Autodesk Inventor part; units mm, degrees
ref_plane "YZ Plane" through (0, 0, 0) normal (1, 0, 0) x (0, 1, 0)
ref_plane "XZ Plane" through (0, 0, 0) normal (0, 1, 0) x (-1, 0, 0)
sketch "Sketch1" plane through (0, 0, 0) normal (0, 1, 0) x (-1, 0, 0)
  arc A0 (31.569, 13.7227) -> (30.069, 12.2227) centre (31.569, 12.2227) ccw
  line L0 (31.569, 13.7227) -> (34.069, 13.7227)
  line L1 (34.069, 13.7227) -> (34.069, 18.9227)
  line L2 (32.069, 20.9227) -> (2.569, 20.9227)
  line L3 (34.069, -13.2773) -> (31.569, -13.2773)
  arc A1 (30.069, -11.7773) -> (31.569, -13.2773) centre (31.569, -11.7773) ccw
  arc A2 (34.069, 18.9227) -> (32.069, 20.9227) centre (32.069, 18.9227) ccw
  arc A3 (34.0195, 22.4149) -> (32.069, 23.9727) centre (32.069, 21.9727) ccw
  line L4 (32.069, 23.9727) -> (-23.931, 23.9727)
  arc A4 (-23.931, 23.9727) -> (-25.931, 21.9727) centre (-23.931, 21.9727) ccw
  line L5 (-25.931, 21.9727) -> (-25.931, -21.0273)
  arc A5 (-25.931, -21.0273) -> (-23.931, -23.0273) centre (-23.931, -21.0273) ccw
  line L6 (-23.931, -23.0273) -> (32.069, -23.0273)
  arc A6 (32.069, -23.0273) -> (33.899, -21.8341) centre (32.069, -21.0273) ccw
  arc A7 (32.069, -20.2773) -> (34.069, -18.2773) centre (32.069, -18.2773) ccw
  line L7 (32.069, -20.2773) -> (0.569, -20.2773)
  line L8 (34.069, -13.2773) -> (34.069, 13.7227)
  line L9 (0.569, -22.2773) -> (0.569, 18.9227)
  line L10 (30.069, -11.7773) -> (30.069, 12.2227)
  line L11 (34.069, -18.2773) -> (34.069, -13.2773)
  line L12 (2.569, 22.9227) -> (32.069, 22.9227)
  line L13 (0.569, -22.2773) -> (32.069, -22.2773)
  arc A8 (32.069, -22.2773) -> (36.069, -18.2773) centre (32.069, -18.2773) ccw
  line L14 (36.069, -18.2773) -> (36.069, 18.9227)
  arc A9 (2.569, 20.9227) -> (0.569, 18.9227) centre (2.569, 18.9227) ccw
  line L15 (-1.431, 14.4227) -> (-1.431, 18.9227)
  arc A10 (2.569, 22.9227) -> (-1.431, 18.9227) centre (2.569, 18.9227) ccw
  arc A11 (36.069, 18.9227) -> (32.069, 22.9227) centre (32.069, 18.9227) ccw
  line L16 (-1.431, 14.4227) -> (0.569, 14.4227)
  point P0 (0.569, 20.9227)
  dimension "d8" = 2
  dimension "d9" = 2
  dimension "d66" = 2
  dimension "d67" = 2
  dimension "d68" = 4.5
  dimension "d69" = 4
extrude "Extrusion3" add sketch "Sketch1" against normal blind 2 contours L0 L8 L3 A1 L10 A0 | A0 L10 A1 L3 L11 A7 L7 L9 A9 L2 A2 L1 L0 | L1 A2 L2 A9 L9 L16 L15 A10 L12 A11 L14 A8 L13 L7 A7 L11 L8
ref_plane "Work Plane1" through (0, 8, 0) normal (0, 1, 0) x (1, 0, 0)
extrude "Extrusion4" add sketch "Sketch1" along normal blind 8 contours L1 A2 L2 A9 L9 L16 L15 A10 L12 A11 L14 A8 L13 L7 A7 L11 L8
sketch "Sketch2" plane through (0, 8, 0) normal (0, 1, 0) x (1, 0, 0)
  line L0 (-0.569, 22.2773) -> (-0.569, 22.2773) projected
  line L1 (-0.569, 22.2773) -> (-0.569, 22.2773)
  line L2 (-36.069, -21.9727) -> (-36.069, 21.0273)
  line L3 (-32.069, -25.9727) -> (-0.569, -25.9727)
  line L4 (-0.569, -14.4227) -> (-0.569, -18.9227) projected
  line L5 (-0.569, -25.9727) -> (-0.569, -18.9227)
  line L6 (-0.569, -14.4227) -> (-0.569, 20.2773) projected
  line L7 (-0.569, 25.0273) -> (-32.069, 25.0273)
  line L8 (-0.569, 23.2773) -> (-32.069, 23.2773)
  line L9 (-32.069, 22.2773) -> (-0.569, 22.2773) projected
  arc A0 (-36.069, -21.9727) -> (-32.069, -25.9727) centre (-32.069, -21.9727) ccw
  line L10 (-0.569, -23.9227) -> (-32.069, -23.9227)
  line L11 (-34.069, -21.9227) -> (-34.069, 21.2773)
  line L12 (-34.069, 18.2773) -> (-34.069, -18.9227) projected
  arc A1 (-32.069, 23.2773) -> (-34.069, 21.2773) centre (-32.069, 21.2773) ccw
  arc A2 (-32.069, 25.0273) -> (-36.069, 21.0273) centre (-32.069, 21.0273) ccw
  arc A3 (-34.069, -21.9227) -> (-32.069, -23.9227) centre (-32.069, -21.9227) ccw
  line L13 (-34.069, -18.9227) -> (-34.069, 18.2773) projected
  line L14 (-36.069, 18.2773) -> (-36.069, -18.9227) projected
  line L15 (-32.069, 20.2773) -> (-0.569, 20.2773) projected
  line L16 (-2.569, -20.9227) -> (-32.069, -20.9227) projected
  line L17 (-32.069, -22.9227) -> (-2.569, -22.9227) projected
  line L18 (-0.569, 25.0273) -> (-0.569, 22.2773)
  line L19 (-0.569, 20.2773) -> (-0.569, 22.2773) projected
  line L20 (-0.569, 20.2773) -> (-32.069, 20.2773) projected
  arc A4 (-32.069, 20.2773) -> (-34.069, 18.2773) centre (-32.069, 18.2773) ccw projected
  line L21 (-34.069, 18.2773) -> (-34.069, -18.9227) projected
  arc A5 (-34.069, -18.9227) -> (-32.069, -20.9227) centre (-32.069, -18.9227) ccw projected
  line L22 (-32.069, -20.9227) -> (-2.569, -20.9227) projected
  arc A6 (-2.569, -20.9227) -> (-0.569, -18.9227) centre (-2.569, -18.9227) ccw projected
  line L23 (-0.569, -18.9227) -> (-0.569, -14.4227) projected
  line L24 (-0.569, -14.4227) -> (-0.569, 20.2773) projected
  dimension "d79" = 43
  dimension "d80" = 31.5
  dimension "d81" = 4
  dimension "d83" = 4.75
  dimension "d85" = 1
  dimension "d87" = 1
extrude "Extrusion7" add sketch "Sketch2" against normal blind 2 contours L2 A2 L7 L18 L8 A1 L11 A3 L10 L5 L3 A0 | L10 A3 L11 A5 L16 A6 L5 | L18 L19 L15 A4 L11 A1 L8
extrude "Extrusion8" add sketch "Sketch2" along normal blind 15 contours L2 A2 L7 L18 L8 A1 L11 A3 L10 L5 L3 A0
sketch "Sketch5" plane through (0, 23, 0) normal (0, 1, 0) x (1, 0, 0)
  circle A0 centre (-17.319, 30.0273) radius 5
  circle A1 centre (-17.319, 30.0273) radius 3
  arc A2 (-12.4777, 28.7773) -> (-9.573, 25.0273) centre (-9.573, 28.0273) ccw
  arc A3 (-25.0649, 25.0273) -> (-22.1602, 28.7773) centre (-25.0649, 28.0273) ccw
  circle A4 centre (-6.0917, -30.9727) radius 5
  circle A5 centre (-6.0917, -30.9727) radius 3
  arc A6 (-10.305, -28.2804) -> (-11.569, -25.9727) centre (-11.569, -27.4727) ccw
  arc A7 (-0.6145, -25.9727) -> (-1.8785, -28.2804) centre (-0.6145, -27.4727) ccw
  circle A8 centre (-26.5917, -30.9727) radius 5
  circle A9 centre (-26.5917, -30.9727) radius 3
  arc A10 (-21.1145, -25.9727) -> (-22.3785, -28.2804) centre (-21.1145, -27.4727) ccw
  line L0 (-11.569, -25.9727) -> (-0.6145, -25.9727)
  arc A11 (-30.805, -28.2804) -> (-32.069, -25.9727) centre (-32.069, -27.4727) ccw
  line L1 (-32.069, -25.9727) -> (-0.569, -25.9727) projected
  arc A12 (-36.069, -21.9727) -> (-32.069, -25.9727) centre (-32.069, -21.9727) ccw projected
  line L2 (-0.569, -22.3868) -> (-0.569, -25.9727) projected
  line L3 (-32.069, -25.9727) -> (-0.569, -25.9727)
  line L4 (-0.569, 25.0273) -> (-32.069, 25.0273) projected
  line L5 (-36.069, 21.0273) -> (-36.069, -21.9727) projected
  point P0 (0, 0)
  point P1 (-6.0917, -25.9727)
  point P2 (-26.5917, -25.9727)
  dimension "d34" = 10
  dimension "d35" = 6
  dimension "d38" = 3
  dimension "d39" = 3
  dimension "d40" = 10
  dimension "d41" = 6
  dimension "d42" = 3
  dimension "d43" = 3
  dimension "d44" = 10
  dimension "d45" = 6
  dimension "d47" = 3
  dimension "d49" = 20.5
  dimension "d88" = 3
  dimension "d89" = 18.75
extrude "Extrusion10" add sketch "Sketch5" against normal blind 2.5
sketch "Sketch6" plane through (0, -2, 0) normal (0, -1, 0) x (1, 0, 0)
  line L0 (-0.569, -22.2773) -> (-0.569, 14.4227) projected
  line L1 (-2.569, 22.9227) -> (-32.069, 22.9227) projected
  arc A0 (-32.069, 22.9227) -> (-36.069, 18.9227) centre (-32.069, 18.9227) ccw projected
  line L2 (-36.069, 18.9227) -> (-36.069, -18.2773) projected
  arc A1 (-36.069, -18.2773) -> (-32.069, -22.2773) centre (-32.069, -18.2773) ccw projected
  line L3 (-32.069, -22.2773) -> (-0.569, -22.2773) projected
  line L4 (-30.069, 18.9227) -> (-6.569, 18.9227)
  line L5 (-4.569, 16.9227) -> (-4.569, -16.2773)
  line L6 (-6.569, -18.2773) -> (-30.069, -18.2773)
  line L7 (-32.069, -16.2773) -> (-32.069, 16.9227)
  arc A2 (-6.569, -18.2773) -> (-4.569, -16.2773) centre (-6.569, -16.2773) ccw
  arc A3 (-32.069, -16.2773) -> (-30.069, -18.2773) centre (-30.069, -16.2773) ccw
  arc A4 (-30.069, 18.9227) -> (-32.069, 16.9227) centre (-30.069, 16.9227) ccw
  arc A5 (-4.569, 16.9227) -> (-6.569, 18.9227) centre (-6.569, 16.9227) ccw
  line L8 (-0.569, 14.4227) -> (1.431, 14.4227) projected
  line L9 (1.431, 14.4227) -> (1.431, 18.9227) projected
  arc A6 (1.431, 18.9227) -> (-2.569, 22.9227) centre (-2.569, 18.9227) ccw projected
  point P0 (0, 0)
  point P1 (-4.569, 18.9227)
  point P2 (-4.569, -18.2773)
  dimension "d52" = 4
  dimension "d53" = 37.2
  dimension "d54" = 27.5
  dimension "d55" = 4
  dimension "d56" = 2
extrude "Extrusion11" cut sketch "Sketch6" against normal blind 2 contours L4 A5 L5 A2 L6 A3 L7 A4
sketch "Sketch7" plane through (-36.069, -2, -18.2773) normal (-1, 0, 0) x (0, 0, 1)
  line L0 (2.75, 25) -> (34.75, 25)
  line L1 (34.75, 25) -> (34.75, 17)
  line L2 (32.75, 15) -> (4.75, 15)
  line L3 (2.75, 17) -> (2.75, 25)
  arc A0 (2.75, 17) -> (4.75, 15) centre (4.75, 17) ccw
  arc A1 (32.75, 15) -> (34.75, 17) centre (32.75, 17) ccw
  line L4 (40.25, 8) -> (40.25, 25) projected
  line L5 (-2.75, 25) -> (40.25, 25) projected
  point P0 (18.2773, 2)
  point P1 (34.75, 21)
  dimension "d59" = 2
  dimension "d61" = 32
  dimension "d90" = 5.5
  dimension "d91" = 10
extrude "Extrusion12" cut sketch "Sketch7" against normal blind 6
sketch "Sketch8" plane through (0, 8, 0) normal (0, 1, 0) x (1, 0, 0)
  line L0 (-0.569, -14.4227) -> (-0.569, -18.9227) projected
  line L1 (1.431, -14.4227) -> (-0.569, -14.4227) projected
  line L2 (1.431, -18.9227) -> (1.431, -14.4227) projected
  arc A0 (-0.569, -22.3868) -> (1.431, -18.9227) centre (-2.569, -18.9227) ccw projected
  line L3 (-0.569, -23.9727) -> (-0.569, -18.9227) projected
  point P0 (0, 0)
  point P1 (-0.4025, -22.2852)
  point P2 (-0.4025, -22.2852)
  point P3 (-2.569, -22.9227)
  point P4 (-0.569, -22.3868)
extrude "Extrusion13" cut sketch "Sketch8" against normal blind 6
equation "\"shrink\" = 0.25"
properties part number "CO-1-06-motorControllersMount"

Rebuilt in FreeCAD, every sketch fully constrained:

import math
import FreeCAD as App
import Part
import Sketcher
Q = App.Units.Quantity

doc = App.newDocument("Part")
params = doc.addObject("Spreadsheet::Sheet", "Params")
for row, (alias, value) in enumerate([
    ("sketch1_radius", "4 mm"),
    ("sketch1_width", "2 mm"),
    ("sketch1_height", "4.5 mm"),
    ("sketch1_width2", "31.5 mm"),
    ("sketch1_height2", "36.7 mm"),
    ("pad1_length", "2 mm"),
    ("sketch2_radius", "2 mm"),
    ("sketch2_radius2", "4 mm"),
    ("sketch2_height", "4.5 mm"),
    ("sketch2_width", "31.5 mm"),
    ("sketch2_height2", "37.2 mm"),
    ("pad2_length", "8 mm"),
    ("sketch3_radius", "4 mm"),
    ("sketch3_radius2", "2 mm"),
    ("sketch3_height", "43 mm"),
    ("sketch3_width", "31.5 mm"),
    ("sketch3_height2", "4.75 mm"),
    ("pad3_length", "2 mm"),
    ("sketch4_radius", "4 mm"),
    ("sketch4_radius2", "2 mm"),
    ("sketch4_height", "43 mm"),
    ("sketch4_width", "31.5 mm"),
    ("sketch4_height2", "43.2 mm"),
    ("pad4_length", "15 mm"),
    ("sketch5_diameter", "6 mm"),
    ("sketch5_radius", "5 mm"),
    ("sketch5_radius2", "1.5 mm"),
    ("pad5_length", "2.5 mm"),
    ("sketch6_radius", "2 mm"),
    ("sketch6_height", "33.2 mm"),
    ("pocket1_length", "2 mm"),
    ("sketch7_radius", "2 mm"),
    ("sketch7_height", "32 mm"),
    ("pocket2_length", "6 mm"),
    ("sketch8_radius", "4 mm"),
    ("sketch8_width", "2 mm"),
    ("sketch8_height", "4.5 mm"),
    ("pocket3_length", "6 mm"),
], start=1):
    params.set(f"A{row}", alias)
    params.set(f"B{row}", "=" + value)
    params.setAlias(f"B{row}", alias)

body = doc.addObject("PartDesign::Body", "Body")

# Sketch on XZ plane
sketch1 = body.newObject("Sketcher::SketchObject", "Sketch")
sketch1.AttachmentSupport = (doc.getObject("XZ_Plane"), [""])
sketch1.MapMode = "FlatFace"
sketch1.addGeometry([
    Part.LineSegment(App.Vector(-0.6, 14.4, 0), App.Vector(-0.6, -22.3, 0)),  # 0
    Part.LineSegment(App.Vector(-0.6, -22.3, 0), App.Vector(-32.1, -22.3, 0)),  # 1
    Part.ArcOfCircle(Part.Circle(App.Vector(-32.1, -18.3, 0), App.Vector(0, 0, 1), 4), math.radians(180), math.radians(270)),  # 2
    Part.LineSegment(App.Vector(-36.1, -18.3, 0), App.Vector(-36.1, 18.9, 0)),  # 3
    Part.ArcOfCircle(Part.Circle(App.Vector(-32.1, 18.9, 0), App.Vector(0, 0, 1), 4), math.radians(90), math.radians(180)),  # 4
    Part.LineSegment(App.Vector(-32.1, 22.9, 0), App.Vector(-2.6, 22.9, 0)),  # 5
    Part.ArcOfCircle(Part.Circle(App.Vector(-2.6, 18.9, 0), App.Vector(0, 0, 1), 4), math.radians(0), math.radians(90)),  # 6
    Part.LineSegment(App.Vector(1.4, 18.9, 0), App.Vector(1.4, 14.4, 0)),  # 7
    Part.LineSegment(App.Vector(1.4, 14.4, 0), App.Vector(-0.6, 14.4, 0)),  # 8
], False)
sketch1.addConstraint([
    Sketcher.Constraint("Coincident", 0, 2, 1, 1),
    Sketcher.Constraint("Tangent", 1, 2, 2, 2),
    Sketcher.Constraint("Tangent", 2, 1, 3, 1),
    Sketcher.Constraint("Tangent", 3, 2, 4, 2),
    Sketcher.Constraint("Tangent", 4, 1, 5, 1),
    Sketcher.Constraint("Tangent", 5, 2, 6, 2),
    Sketcher.Constraint("Tangent", 6, 1, 7, 1),
    Sketcher.Constraint("Coincident", 7, 2, 8, 1),
    Sketcher.Constraint("Coincident", 8, 2, 0, 1),
    Sketcher.Constraint("Vertical", 0),
    Sketcher.Constraint("Horizontal", 1),
    Sketcher.Constraint("Vertical", 3),
    Sketcher.Constraint("Horizontal", 5),
    Sketcher.Constraint("Vertical", 7),
    Sketcher.Constraint("Horizontal", 8),
    Sketcher.Constraint("Equal", 2, 4),
    Sketcher.Constraint("Equal", 4, 6),
    Sketcher.Constraint("Radius", 2, Q("4 mm")),
    Sketcher.Constraint("DistanceX", 8, 2, 8, 1, Q("2 mm")),
    Sketcher.Constraint("DistanceY", 7, 2, 7, 1, Q("4.5 mm")),
    Sketcher.Constraint("DistanceX", 1, 2, 1, 1, Q("31.5 mm")),
    Sketcher.Constraint("DistanceY", 0, 2, 0, 1, Q("36.7 mm")),
    Sketcher.Constraint("DistanceX", 2, 3, -1, 1, Q("32.069 mm")),
    Sketcher.Constraint("DistanceY", 2, 3, -1, 1, Q("18.2773 mm")),
])
sketch1.setExpression("Constraints[17]", "Params.sketch1_radius")
sketch1.setExpression("Constraints[18]", "Params.sketch1_width")
sketch1.setExpression("Constraints[19]", "Params.sketch1_height")
sketch1.setExpression("Constraints[20]", "Params.sketch1_width2")
sketch1.setExpression("Constraints[21]", "Params.sketch1_height2")
pad1 = body.newObject("PartDesign::Pad", "Pad")
pad1.Profile = sketch1
pad1.setExpression("Length", "Params.pad1_length")

# Sketch on XZ plane
sketch2 = body.newObject("Sketcher::SketchObject", "Sketch001")
sketch2.AttachmentSupport = (doc.getObject("XZ_Plane"), [""])
sketch2.MapMode = "FlatFace"
sketch2.addGeometry([
    Part.LineSegment(App.Vector(-34.1, 18.9, 0), App.Vector(-34.1, -18.3, 0)),  # 0
    Part.ArcOfCircle(Part.Circle(App.Vector(-32.1, -18.3, 0), App.Vector(0, 0, 1), 2), math.radians(180), math.radians(270)),  # 1
    Part.LineSegment(App.Vector(-32.1, -20.3, 0), App.Vector(-0.6, -20.3, 0)),  # 2
    Part.LineSegment(App.Vector(-0.6, -20.3, 0), App.Vector(-0.6, -22.3, 0)),  # 3
    Part.LineSegment(App.Vector(-0.6, -22.3, 0), App.Vector(-32.1, -22.3, 0)),  # 4
    Part.ArcOfCircle(Part.Circle(App.Vector(-32.1, -18.3, 0), App.Vector(0, 0, 1), 4), math.radians(180), math.radians(270)),  # 5
    Part.LineSegment(App.Vector(-36.1, -18.3, 0), App.Vector(-36.1, 18.9, 0)),  # 6
    Part.ArcOfCircle(Part.Circle(App.Vector(-32.1, 18.9, 0), App.Vector(0, 0, 1), 4), math.radians(90), math.radians(180)),  # 7
    Part.LineSegment(App.Vector(-32.1, 22.9, 0), App.Vector(-2.6, 22.9, 0)),  # 8
    Part.ArcOfCircle(Part.Circle(App.Vector(-2.6, 18.9, 0), App.Vector(0, 0, 1), 4), math.radians(0), math.radians(90)),  # 9
    Part.LineSegment(App.Vector(1.4, 18.9, 0), App.Vector(1.4, 14.4, 0)),  # 10
    Part.LineSegment(App.Vector(1.4, 14.4, 0), App.Vector(-0.6, 14.4, 0)),  # 11
    Part.LineSegment(App.Vector(-0.6, 14.4, 0), App.Vector(-0.6, 18.9, 0)),  # 12
    Part.ArcOfCircle(Part.Circle(App.Vector(-2.6, 18.9, 0), App.Vector(0, 0, 1), 2), math.radians(0), math.radians(90)),  # 13
    Part.LineSegment(App.Vector(-2.6, 20.9, 0), App.Vector(-32.1, 20.9, 0)),  # 14
    Part.ArcOfCircle(Part.Circle(App.Vector(-32.1, 18.9, 0), App.Vector(0, 0, 1), 2), math.radians(90), math.radians(180)),  # 15
], False)
sketch2.addConstraint([
    Sketcher.Constraint("Tangent", 0, 2, 1, 1),
    Sketcher.Constraint("Tangent", 1, 2, 2, 1),
    Sketcher.Constraint("Coincident", 2, 2, 3, 1),
    Sketcher.Constraint("Coincident", 3, 2, 4, 1),
    Sketcher.Constraint("Tangent", 4, 2, 5, 2),
    Sketcher.Constraint("Tangent", 5, 1, 6, 1),
    Sketcher.Constraint("Tangent", 6, 2, 7, 2),
    Sketcher.Constraint("Tangent", 7, 1, 8, 1),
    Sketcher.Constraint("Tangent", 8, 2, 9, 2),
    Sketcher.Constraint("Tangent", 9, 1, 10, 1),
    Sketcher.Constraint("Coincident", 10, 2, 11, 1),
    Sketcher.Constraint("Coincident", 11, 2, 12, 1),
    Sketcher.Constraint("Tangent", 12, 2, 13, 1),
    Sketcher.Constraint("Tangent", 13, 2, 14, 1),
    Sketcher.Constraint("Tangent", 14, 2, 15, 1),
    Sketcher.Constraint("Tangent", 15, 2, 0, 1),
    Sketcher.Constraint("Vertical", 0),
    Sketcher.Constraint("Horizontal", 2),
    Sketcher.Constraint("Vertical", 3),
    Sketcher.Constraint("Horizontal", 4),
    Sketcher.Constraint("Vertical", 6),
    Sketcher.Constraint("Horizontal", 8),
    Sketcher.Constraint("Vertical", 10),
    Sketcher.Constraint("Horizontal", 11),
    Sketcher.Constraint("Vertical", 12),
    Sketcher.Constraint("Horizontal", 14),
    Sketcher.Constraint("Coincident", 5, 3, 1, 3),
    Sketcher.Constraint("Coincident", 13, 3, 9, 3),
    Sketcher.Constraint("Coincident", 15, 3, 7, 3),
    Sketcher.Constraint("Equal", 5, 7),
    Sketcher.Constraint("Equal", 7, 9),
    Sketcher.Constraint("Vertical", 3, 2, 11, 2),
    Sketcher.Constraint("Radius", 1, Q("2 mm")),
    Sketcher.Constraint("Radius", 5, Q("4 mm")),
    Sketcher.Constraint("DistanceY", 10, 2, 10, 1, Q("4.5 mm")),
    Sketcher.Constraint("DistanceX", 2, 1, 2, 2, Q("31.5 mm")),
    Sketcher.Constraint("DistanceY", 0, 2, 0, 1, Q("37.2 mm")),
    Sketcher.Constraint("DistanceX", 1, 3, -1, 1, Q("32.069 mm")),
    Sketcher.Constraint("DistanceY", 1, 3, -1, 1, Q("18.2773 mm")),
])
sketch2.setExpression("Constraints[32]", "Params.sketch2_radius")
sketch2.setExpression("Constraints[33]", "Params.sketch2_radius2")
sketch2.setExpression("Constraints[34]", "Params.sketch2_height")
sketch2.setExpression("Constraints[35]", "Params.sketch2_width")
sketch2.setExpression("Constraints[36]", "Params.sketch2_height2")
pad2 = body.newObject("PartDesign::Pad", "Pad001")
pad2.Profile = sketch2
pad2.setExpression("Length", "Params.pad2_length")
pad2.Reversed = True

# Sketch on XZ plane
sketch3 = body.newObject("Sketcher::SketchObject", "Sketch002")
sketch3.AttachmentSupport = (doc.getObject("XZ_Plane"), [""])
sketch3.MapMode = "FlatFace"
sketch3.AttachmentOffset = App.Placement(App.Vector(0, 0, -8), App.Rotation())
sketch3.addGeometry([
    Part.ArcOfCircle(Part.Circle(App.Vector(-32.1, 22, 0), App.Vector(0, 0, 1), 4), math.radians(90), math.radians(180)),  # 0
    Part.LineSegment(App.Vector(-32.1, 26, 0), App.Vector(-0.6, 26, 0)),  # 1
    Part.LineSegment(App.Vector(-0.6, 26, 0), App.Vector(-0.6, 18.9, 0)),  # 2
    Part.ArcOfCircle(Part.Circle(App.Vector(-2.6, 18.9, 0), App.Vector(0, 0, 1), 2), math.radians(0), math.radians(90)),  # 3
    Part.LineSegment(App.Vector(-2.6, 20.9, 0), App.Vector(-32.1, 20.9, 0)),  # 4
    Part.ArcOfCircle(Part.Circle(App.Vector(-32.1, 18.9, 0), App.Vector(0, 0, 1), 2), math.radians(90), math.radians(180)),  # 5
    Part.LineSegment(App.Vector(-34.1, 18.9, 0), App.Vector(-34.1, -18.3, 0)),  # 6
    Part.ArcOfCircle(Part.Circle(App.Vector(-32.1, -18.3, 0), App.Vector(0, 0, 1), 2), math.radians(180), math.radians(270)),  # 7
    Part.LineSegment(App.Vector(-32.1, -20.3, 0), App.Vector(-0.6, -20.3, 0)),  # 8
    Part.LineSegment(App.Vector(-0.6, -20.3, 0), App.Vector(-0.6, -25, 0)),  # 9
    Part.LineSegment(App.Vector(-0.6, -25, 0), App.Vector(-32.1, -25, 0)),  # 10
    Part.ArcOfCircle(Part.Circle(App.Vector(-32.1, -21, 0), App.Vector(0, 0, 1), 4), math.radians(180), math.radians(270)),  # 11
    Part.LineSegment(App.Vector(-36.1, -21, 0), App.Vector(-36.1, 22, 0)),  # 12
], False)
sketch3.addConstraint([
    Sketcher.Constraint("Tangent", 0, 1, 1, 1),
    Sketcher.Constraint("Coincident", 1, 2, 2, 1),
    Sketcher.Constraint("Tangent", 2, 2, 3, 1),
    Sketcher.Constraint("Tangent", 3, 2, 4, 1),
    Sketcher.Constraint("Tangent", 4, 2, 5, 1),
    Sketcher.Constraint("Tangent", 5, 2, 6, 1),
    Sketcher.Constraint("Tangent", 6, 2, 7, 1),
    Sketcher.Constraint("Tangent", 7, 2, 8, 1),
    Sketcher.Constraint("Coincident", 8, 2, 9, 1),
    Sketcher.Constraint("Coincident", 9, 2, 10, 1),
    Sketcher.Constraint("Tangent", 10, 2, 11, 2),
    Sketcher.Constraint("Tangent", 11, 1, 12, 1),
    Sketcher.Constraint("Tangent", 12, 2, 0, 2),
    Sketcher.Constraint("Horizontal", 1),
    Sketcher.Constraint("Vertical", 2),
    Sketcher.Constraint("Horizontal", 4),
    Sketcher.Constraint("Vertical", 6),
    Sketcher.Constraint("Horizontal", 8),
    Sketcher.Constraint("Vertical", 9),
    Sketcher.Constraint("Horizontal", 10),
    Sketcher.Constraint("Vertical", 12),
    Sketcher.Constraint("Equal", 3, 5),
    Sketcher.Constraint("Equal", 5, 7),
    Sketcher.Constraint("Equal", 0, 11),
    Sketcher.Constraint("Vertical", 0, 3, 5, 3),
    Sketcher.Constraint("Vertical", 2, 2, 8, 2),
    Sketcher.Constraint("Radius", 0, Q("4 mm")),
    Sketcher.Constraint("Radius", 3, Q("2 mm")),
    Sketcher.Constraint("DistanceY", 12, 1, 12, 2, Q("43 mm")),
    Sketcher.Constraint("DistanceX", 1, 1, 1, 2, Q("31.5 mm")),
    Sketcher.Constraint("DistanceY", 9, 2, 9, 1, Q("4.75 mm")),
    Sketcher.Constraint("DistanceY", 6, 2, 6, 1, Q("37.2 mm")),
    Sketcher.Constraint("DistanceX", 0, 3, -1, 1, Q("32.069 mm")),
    Sketcher.Constraint("DistanceY", -1, 1, 0, 3, Q("21.9727 mm")),
])
sketch3.setExpression("Constraints[26]", "Params.sketch3_radius")
sketch3.setExpression("Constraints[27]", "Params.sketch3_radius2")
sketch3.setExpression("Constraints[28]", "Params.sketch3_height")
sketch3.setExpression("Constraints[29]", "Params.sketch3_width")
sketch3.setExpression("Constraints[30]", "Params.sketch3_height2")
pad3 = body.newObject("PartDesign::Pad", "Pad002")
pad3.Profile = sketch3
pad3.setExpression("Length", "Params.pad3_length")

# Sketch on XZ plane
sketch4 = body.newObject("Sketcher::SketchObject", "Sketch003")
sketch4.AttachmentSupport = (doc.getObject("XZ_Plane"), [""])
sketch4.MapMode = "FlatFace"
sketch4.AttachmentOffset = App.Placement(App.Vector(0, 0, -8), App.Rotation())
sketch4.addGeometry([
    Part.LineSegment(App.Vector(-36.1, -21, 0), App.Vector(-36.1, 22, 0)),  # 0
    Part.ArcOfCircle(Part.Circle(App.Vector(-32.1, 22, 0), App.Vector(0, 0, 1), 4), math.radians(90), math.radians(180)),  # 1
    Part.LineSegment(App.Vector(-32.1, 26, 0), App.Vector(-0.6, 26, 0)),  # 2
    Part.LineSegment(App.Vector(-0.6, 26, 0), App.Vector(-0.6, 23.9, 0)),  # 3
    Part.LineSegment(App.Vector(-0.6, 23.9, 0), App.Vector(-32.1, 23.9, 0)),  # 4
    Part.ArcOfCircle(Part.Circle(App.Vector(-32.1, 21.9, 0), App.Vector(0, 0, 1), 2), math.radians(90), math.radians(180)),  # 5
    Part.LineSegment(App.Vector(-34.1, 21.9, 0), App.Vector(-34.1, -21.3, 0)),  # 6
    Part.ArcOfCircle(Part.Circle(App.Vector(-32.1, -21.3, 0), App.Vector(0, 0, 1), 2), math.radians(180), math.radians(270)),  # 7
    Part.LineSegment(App.Vector(-32.1, -23.3, 0), App.Vector(-0.6, -23.3, 0)),  # 8
    Part.LineSegment(App.Vector(-0.6, -23.3, 0), App.Vector(-0.6, -25, 0)),  # 9
    Part.LineSegment(App.Vector(-0.6, -25, 0), App.Vector(-32.1, -25, 0)),  # 10
    Part.ArcOfCircle(Part.Circle(App.Vector(-32.1, -21, 0), App.Vector(0, 0, 1), 4), math.radians(180), math.radians(270)),  # 11
], False)
sketch4.addConstraint([
    Sketcher.Constraint("Tangent", 0, 2, 1, 2),
    Sketcher.Constraint("Tangent", 1, 1, 2, 1),
    Sketcher.Constraint("Coincident", 2, 2, 3, 1),
    Sketcher.Constraint("Coincident", 3, 2, 4, 1),
    Sketcher.Constraint("Tangent", 4, 2, 5, 1),
    Sketcher.Constraint("Tangent", 5, 2, 6, 1),
    Sketcher.Constraint("Tangent", 6, 2, 7, 1),
    Sketcher.Constraint("Tangent", 7, 2, 8, 1),
    Sketcher.Constraint("Coincident", 8, 2, 9, 1),
    Sketcher.Constraint("Coincident", 9, 2, 10, 1),
    Sketcher.Constraint("Tangent", 10, 2, 11, 2),
    Sketcher.Constraint("Tangent", 11, 1, 0, 1),
    Sketcher.Constraint("Vertical", 0),
    Sketcher.Constraint("Horizontal", 2),
    Sketcher.Constraint("Vertical", 3),
    Sketcher.Constraint("Horizontal", 4),
    Sketcher.Constraint("Vertical", 6),
    Sketcher.Constraint("Horizontal", 8),
    Sketcher.Constraint("Vertical", 9),
    Sketcher.Constraint("Horizontal", 10),
    Sketcher.Constraint("Equal", 5, 7),
    Sketcher.Constraint("Equal", 1, 11),
    Sketcher.Constraint("Vertical", 1, 3, 5, 3),
    Sketcher.Constraint("Vertical", 3, 2, 8, 2),
    Sketcher.Constraint("Radius", 1, Q("4 mm")),
    Sketcher.Constraint("Radius", 5, Q("2 mm")),
    Sketcher.Constraint("DistanceY", 0, 1, 0, 2, Q("43 mm")),
    Sketcher.Constraint("DistanceX", 2, 1, 2, 2, Q("31.5 mm")),
    Sketcher.Constraint("DistanceY", 6, 2, 6, 1, Q("43.2 mm")),
    Sketcher.Constraint("DistanceY", 3, 2, 3, 1, Q("2.05 mm")),
    Sketcher.Constraint("DistanceX", 1, 3, -1, 1, Q("32.069 mm")),
    Sketcher.Constraint("DistanceY", -1, 1, 1, 3, Q("21.9727 mm")),
])
sketch4.setExpression("Constraints[24]", "Params.sketch4_radius")
sketch4.setExpression("Constraints[25]", "Params.sketch4_radius2")
sketch4.setExpression("Constraints[26]", "Params.sketch4_height")
sketch4.setExpression("Constraints[27]", "Params.sketch4_width")
sketch4.setExpression("Constraints[28]", "Params.sketch4_height2")
pad4 = body.newObject("PartDesign::Pad", "Pad003")
pad4.Profile = sketch4
pad4.setExpression("Length", "Params.pad4_length")
pad4.Reversed = True

# Sketch on XZ plane
sketch5 = body.newObject("Sketcher::SketchObject", "Sketch004")
sketch5.AttachmentSupport = (doc.getObject("XZ_Plane"), [""])
sketch5.MapMode = "FlatFace"
sketch5.AttachmentOffset = App.Placement(App.Vector(0, 0, -23), App.Rotation())
sketch5.addGeometry([
    Part.ArcOfCircle(Part.Circle(App.Vector(-17.3, -30, 0), App.Vector(0, 0, 1), 5), math.radians(166), math.radians(374)),  # 0
    Part.ArcOfCircle(Part.Circle(App.Vector(-25.1, -28, 0), App.Vector(0, 0, 1), 3), math.radians(-14), math.radians(90)),  # 1
    Part.LineSegment(App.Vector(-25.1, -25, 0), App.Vector(-9.6, -25, 0)),  # 2
    Part.ArcOfCircle(Part.Circle(App.Vector(-9.6, -28, 0), App.Vector(0, 0, 1), 3), math.radians(90), math.radians(194)),  # 3
    Part.Circle(App.Vector(-17.3, -30, 0), App.Vector(0, 0, 1), 3),  # 4
    Part.ArcOfCircle(Part.Circle(App.Vector(-6.1, 31, 0), App.Vector(0, 0, 1), 5), math.radians(-33), math.radians(213)),  # 5
    Part.ArcOfCircle(Part.Circle(App.Vector(-0.6, 27.5, 0), App.Vector(0, 0, 1), 1.5), math.radians(147), math.radians(270)),  # 6
    Part.LineSegment(App.Vector(-0.6, 26, 0), App.Vector(-11.6, 26, 0)),  # 7
    Part.ArcOfCircle(Part.Circle(App.Vector(-11.6, 27.5, 0), App.Vector(0, 0, 1), 1.5), math.radians(-90), math.radians(33)),  # 8
    Part.Circle(App.Vector(-6.1, 31, 0), App.Vector(0, 0, 1), 3),  # 9
    Part.ArcOfCircle(Part.Circle(App.Vector(-21.1, 27.5, 0), App.Vector(0, 0, 1), 1.5), math.radians(147), math.radians(270)),  # 10
    Part.LineSegment(App.Vector(-21.1, 26, 0), App.Vector(-32.1, 26, 0)),  # 11
    Part.ArcOfCircle(Part.Circle(App.Vector(-32.1, 27.5, 0), App.Vector(0, 0, 1), 1.5), math.radians(-90), math.radians(33)),  # 12
    Part.ArcOfCircle(Part.Circle(App.Vector(-26.6, 31, 0), App.Vector(0, 0, 1), 5), math.radians(-33), math.radians(213)),  # 13
    Part.Circle(App.Vector(-26.6, 31, 0), App.Vector(0, 0, 1), 3),  # 14
], False)
sketch5.addConstraint([
    Sketcher.Constraint("Tangent", 0, 1, 1, 1),
    Sketcher.Constraint("Tangent", 1, 2, 2, 1),
    Sketcher.Constraint("Tangent", 2, 2, 3, 1),
    Sketcher.Constraint("Tangent", 3, 2, 0, 2),
    Sketcher.Constraint("Tangent", 5, 1, 6, 1),
    Sketcher.Constraint("Tangent", 6, 2, 7, 1),
    Sketcher.Constraint("Tangent", 7, 2, 8, 1),
    Sketcher.Constraint("Tangent", 8, 2, 5, 2),
    Sketcher.Constraint("Tangent", 10, 2, 11, 1),
    Sketcher.Constraint("Tangent", 11, 2, 12, 1),
    Sketcher.Constraint("Tangent", 12, 2, 13, 2),
    Sketcher.Constraint("Tangent", 13, 1, 10, 1),
    Sketcher.Constraint("Horizontal", 2),
    Sketcher.Constraint("Horizontal", 7),
    Sketcher.Constraint("Horizontal", 11),
    Sketcher.Constraint("Coincident", 4, 3, 0, 3),
    Sketcher.Constraint("Coincident", 9, 3, 5, 3),
    Sketcher.Constraint("Coincident", 14, 3, 13, 3),
    Sketcher.Constraint("Equal", 1, 3),
    Sketcher.Constraint("Equal", 3, 4),
    Sketcher.Constraint("Equal", 0, 5),
    Sketcher.Constraint("Equal", 6, 8),
    Sketcher.Constraint("Equal", 4, 9),
    Sketcher.Constraint("Equal", 8, 10),
    Sketcher.Constraint("Equal", 10, 12),
    Sketcher.Constraint("Equal", 5, 13),
    Sketcher.Constraint("Equal", 9, 14),
    Sketcher.Constraint("Horizontal", 8, 3, 10, 3),
    Sketcher.Constraint("Horizontal", 9, 3, 13, 3),
    Sketcher.Constraint("Diameter", 4, Q("6 mm")),
    Sketcher.Constraint("Radius", 0, Q("5 mm")),
    Sketcher.Constraint("Radius", 6, Q("1.5 mm")),
    Sketcher.Constraint("DistanceX", 10, 3, 6, 3, Q("20.5 mm")),
    Sketcher.Constraint("DistanceY", 0, 3, 1, 3, Q("2 mm")),
    Sketcher.Constraint("DistanceY", 3, 3, 5, 3, Q("59 mm")),
    Sketcher.Constraint("DistanceY", 6, 2, 5, 3, Q("5 mm")),
    Sketcher.Constraint("DistanceX", 0, 3, 8, 3, Q("5.75 mm")),
    Sketcher.Constraint("DistanceX", 0, 3, -1, 1, Q("17.319 mm")),
    Sketcher.Constraint("DistanceY", 0, 3, -1, 1, Q("30.0273 mm")),
])
sketch5.setExpression("Constraints[29]", "Params.sketch5_diameter")
sketch5.setExpression("Constraints[30]", "Params.sketch5_radius")
sketch5.setExpression("Constraints[31]", "Params.sketch5_radius2")
pad5 = body.newObject("PartDesign::Pad", "Pad004")
pad5.Profile = sketch5
pad5.setExpression("Length", "Params.pad5_length")

# Sketch on XZ plane
sketch6 = body.newObject("Sketcher::SketchObject", "Sketch005")
sketch6.AttachmentSupport = (doc.getObject("XZ_Plane"), [""])
sketch6.MapMode = "FlatFace"
sketch6.AttachmentOffset = App.Placement(App.Vector(0, 0, 2), App.Rotation())
sketch6.addGeometry([
    Part.LineSegment(App.Vector(-6.6, 18.9, 0), App.Vector(-30.1, 18.9, 0)),  # 0
    Part.ArcOfCircle(Part.Circle(App.Vector(-30.1, 16.9, 0), App.Vector(0, 0, 1), 2), math.radians(90), math.radians(180)),  # 1
    Part.LineSegment(App.Vector(-32.1, 16.9, 0), App.Vector(-32.1, -16.3, 0)),  # 2
    Part.ArcOfCircle(Part.Circle(App.Vector(-30.1, -16.3, 0), App.Vector(0, 0, 1), 2), math.radians(180), math.radians(270)),  # 3
    Part.LineSegment(App.Vector(-30.1, -18.3, 0), App.Vector(-6.6, -18.3, 0)),  # 4
    Part.ArcOfCircle(Part.Circle(App.Vector(-6.6, -16.3, 0), App.Vector(0, 0, 1), 2), math.radians(-90), math.radians(0)),  # 5
    Part.LineSegment(App.Vector(-4.6, -16.3, 0), App.Vector(-4.6, 16.9, 0)),  # 6
    Part.ArcOfCircle(Part.Circle(App.Vector(-6.6, 16.9, 0), App.Vector(0, 0, 1), 2), math.radians(0), math.radians(90)),  # 7
], False)
sketch6.addConstraint([
    Sketcher.Constraint("Tangent", 0, 2, 1, 1),
    Sketcher.Constraint("Tangent", 1, 2, 2, 1),
    Sketcher.Constraint("Tangent", 2, 2, 3, 1),
    Sketcher.Constraint("Tangent", 3, 2, 4, 1),
    Sketcher.Constraint("Tangent", 4, 2, 5, 1),
    Sketcher.Constraint("Tangent", 5, 2, 6, 1),
    Sketcher.Constraint("Tangent", 6, 2, 7, 1),
    Sketcher.Constraint("Tangent", 7, 2, 0, 1),
    Sketcher.Constraint("Horizontal", 0),
    Sketcher.Constraint("Vertical", 2),
    Sketcher.Constraint("Horizontal", 4),
    Sketcher.Constraint("Vertical", 6),
    Sketcher.Constraint("Equal", 1, 3),
    Sketcher.Constraint("Equal", 3, 5),
    Sketcher.Constraint("Equal", 5, 7),
    Sketcher.Constraint("Radius", 1, Q("2 mm")),
    Sketcher.Constraint("DistanceX", 2, 2, 5, 2, Q("27.5 mm")),
    Sketcher.Constraint("DistanceY", 2, 2, 2, 1, Q("33.2 mm")),
    Sketcher.Constraint("DistanceX", 1, 3, -1, 1, Q("30.069 mm")),
    Sketcher.Constraint("DistanceY", -1, 1, 1, 3, Q("16.9227 mm")),
])
sketch6.setExpression("Constraints[15]", "Params.sketch6_radius")
sketch6.setExpression("Constraints[17]", "Params.sketch6_height")
pocket1 = body.newObject("PartDesign::Pocket", "Pocket")
pocket1.Profile = sketch6
pocket1.setExpression("Length", "Params.pocket1_length")

# Sketch on YZ plane
sketch7 = body.newObject("Sketcher::SketchObject", "Sketch006")
sketch7.AttachmentSupport = (doc.getObject("YZ_Plane"), [""])
sketch7.MapMode = "FlatFace"
sketch7.AttachmentOffset = App.Placement(App.Vector(0, 0, -36.069), App.Rotation())
sketch7.addGeometry([
    Part.LineSegment(App.Vector(23, 16.5, 0), App.Vector(23, -15.5, 0)),  # 0
    Part.LineSegment(App.Vector(23, -15.5, 0), App.Vector(15, -15.5, 0)),  # 1
    Part.ArcOfCircle(Part.Circle(App.Vector(15, -13.5, 0), App.Vector(0, 0, 1), 2), math.radians(180), math.radians(270)),  # 2
    Part.LineSegment(App.Vector(13, -13.5, 0), App.Vector(13, 14.5, 0)),  # 3
    Part.ArcOfCircle(Part.Circle(App.Vector(15, 14.5, 0), App.Vector(0, 0, 1), 2), math.radians(90), math.radians(180)),  # 4
    Part.LineSegment(App.Vector(15, 16.5, 0), App.Vector(23, 16.5, 0)),  # 5
], False)
sketch7.addConstraint([
    Sketcher.Constraint("Coincident", 0, 2, 1, 1),
    Sketcher.Constraint("Tangent", 1, 2, 2, 2),
    Sketcher.Constraint("Tangent", 2, 1, 3, 1),
    Sketcher.Constraint("Tangent", 3, 2, 4, 2),
    Sketcher.Constraint("Tangent", 4, 1, 5, 1),
    Sketcher.Constraint("Coincident", 5, 2, 0, 1),
    Sketcher.Constraint("Vertical", 0),
    Sketcher.Constraint("Horizontal", 1),
    Sketcher.Constraint("Vertical", 3),
    Sketcher.Constraint("Horizontal", 5),
    Sketcher.Constraint("Equal", 2, 4),
    Sketcher.Constraint("Radius", 2, Q("2 mm")),
    Sketcher.Constraint("DistanceY", 0, 2, 0, 1, Q("32 mm")),
    Sketcher.Constraint("DistanceX", 2, 1, 0, 2, Q("10 mm")),
    Sketcher.Constraint("DistanceX", -1, 1, 2, 3, Q("15 mm")),
    Sketcher.Constraint("DistanceY", 2, 3, -1, 1, Q("13.5273 mm")),
])
sketch7.setExpression("Constraints[11]", "Params.sketch7_radius")
sketch7.setExpression("Constraints[12]", "Params.sketch7_height")
pocket2 = body.newObject("PartDesign::Pocket", "Pocket001")
pocket2.Profile = sketch7
pocket2.setExpression("Length", "Params.pocket2_length")
pocket2.Reversed = True

# Sketch on XZ plane
sketch8 = body.newObject("Sketcher::SketchObject", "Sketch007")
sketch8.AttachmentSupport = (doc.getObject("XZ_Plane"), [""])
sketch8.MapMode = "FlatFace"
sketch8.AttachmentOffset = App.Placement(App.Vector(0, 0, -8), App.Rotation())
sketch8.addGeometry([
    Part.LineSegment(App.Vector(1.4, 14.4, 0), App.Vector(-0.6, 14.4, 0)),
    Part.LineSegment(App.Vector(-0.6, 14.4, 0), App.Vector(-0.6, 22.4, 0)),
    Part.ArcOfCircle(Part.Circle(App.Vector(-2.6, 18.9, 0), App.Vector(0, 0, 1), 4), math.radians(0), math.radians(60)),
    Part.LineSegment(App.Vector(1.4, 18.9, 0), App.Vector(1.4, 14.4, 0)),
], False)
sketch8.addConstraint([
    Sketcher.Constraint("Coincident", 0, 2, 1, 1),
    Sketcher.Constraint("Coincident", 1, 2, 2, 2),
    Sketcher.Constraint("Tangent", 2, 1, 3, 1),
    Sketcher.Constraint("Coincident", 3, 2, 0, 1),
    Sketcher.Constraint("Horizontal", 0),
    Sketcher.Constraint("Vertical", 1),
    Sketcher.Constraint("Vertical", 3),
    Sketcher.Constraint("Radius", 2, Q("4 mm")),
    Sketcher.Constraint("DistanceX", 0, 2, 0, 1, Q("2 mm")),
    Sketcher.Constraint("DistanceY", 3, 2, 3, 1, Q("4.5 mm")),
    Sketcher.Constraint("DistanceX", 2, 3, -1, 1, Q("2.569 mm")),
    Sketcher.Constraint("DistanceY", -1, 1, 2, 3, Q("18.9227 mm")),
])
sketch8.setExpression("Constraints[7]", "Params.sketch8_radius")
sketch8.setExpression("Constraints[8]", "Params.sketch8_width")
sketch8.setExpression("Constraints[9]", "Params.sketch8_height")
pocket3 = body.newObject("PartDesign::Pocket", "Pocket002")
pocket3.Profile = sketch8
pocket3.setExpression("Length", "Params.pocket3_length")
pocket3.Reversed = True

doc.recompute()
